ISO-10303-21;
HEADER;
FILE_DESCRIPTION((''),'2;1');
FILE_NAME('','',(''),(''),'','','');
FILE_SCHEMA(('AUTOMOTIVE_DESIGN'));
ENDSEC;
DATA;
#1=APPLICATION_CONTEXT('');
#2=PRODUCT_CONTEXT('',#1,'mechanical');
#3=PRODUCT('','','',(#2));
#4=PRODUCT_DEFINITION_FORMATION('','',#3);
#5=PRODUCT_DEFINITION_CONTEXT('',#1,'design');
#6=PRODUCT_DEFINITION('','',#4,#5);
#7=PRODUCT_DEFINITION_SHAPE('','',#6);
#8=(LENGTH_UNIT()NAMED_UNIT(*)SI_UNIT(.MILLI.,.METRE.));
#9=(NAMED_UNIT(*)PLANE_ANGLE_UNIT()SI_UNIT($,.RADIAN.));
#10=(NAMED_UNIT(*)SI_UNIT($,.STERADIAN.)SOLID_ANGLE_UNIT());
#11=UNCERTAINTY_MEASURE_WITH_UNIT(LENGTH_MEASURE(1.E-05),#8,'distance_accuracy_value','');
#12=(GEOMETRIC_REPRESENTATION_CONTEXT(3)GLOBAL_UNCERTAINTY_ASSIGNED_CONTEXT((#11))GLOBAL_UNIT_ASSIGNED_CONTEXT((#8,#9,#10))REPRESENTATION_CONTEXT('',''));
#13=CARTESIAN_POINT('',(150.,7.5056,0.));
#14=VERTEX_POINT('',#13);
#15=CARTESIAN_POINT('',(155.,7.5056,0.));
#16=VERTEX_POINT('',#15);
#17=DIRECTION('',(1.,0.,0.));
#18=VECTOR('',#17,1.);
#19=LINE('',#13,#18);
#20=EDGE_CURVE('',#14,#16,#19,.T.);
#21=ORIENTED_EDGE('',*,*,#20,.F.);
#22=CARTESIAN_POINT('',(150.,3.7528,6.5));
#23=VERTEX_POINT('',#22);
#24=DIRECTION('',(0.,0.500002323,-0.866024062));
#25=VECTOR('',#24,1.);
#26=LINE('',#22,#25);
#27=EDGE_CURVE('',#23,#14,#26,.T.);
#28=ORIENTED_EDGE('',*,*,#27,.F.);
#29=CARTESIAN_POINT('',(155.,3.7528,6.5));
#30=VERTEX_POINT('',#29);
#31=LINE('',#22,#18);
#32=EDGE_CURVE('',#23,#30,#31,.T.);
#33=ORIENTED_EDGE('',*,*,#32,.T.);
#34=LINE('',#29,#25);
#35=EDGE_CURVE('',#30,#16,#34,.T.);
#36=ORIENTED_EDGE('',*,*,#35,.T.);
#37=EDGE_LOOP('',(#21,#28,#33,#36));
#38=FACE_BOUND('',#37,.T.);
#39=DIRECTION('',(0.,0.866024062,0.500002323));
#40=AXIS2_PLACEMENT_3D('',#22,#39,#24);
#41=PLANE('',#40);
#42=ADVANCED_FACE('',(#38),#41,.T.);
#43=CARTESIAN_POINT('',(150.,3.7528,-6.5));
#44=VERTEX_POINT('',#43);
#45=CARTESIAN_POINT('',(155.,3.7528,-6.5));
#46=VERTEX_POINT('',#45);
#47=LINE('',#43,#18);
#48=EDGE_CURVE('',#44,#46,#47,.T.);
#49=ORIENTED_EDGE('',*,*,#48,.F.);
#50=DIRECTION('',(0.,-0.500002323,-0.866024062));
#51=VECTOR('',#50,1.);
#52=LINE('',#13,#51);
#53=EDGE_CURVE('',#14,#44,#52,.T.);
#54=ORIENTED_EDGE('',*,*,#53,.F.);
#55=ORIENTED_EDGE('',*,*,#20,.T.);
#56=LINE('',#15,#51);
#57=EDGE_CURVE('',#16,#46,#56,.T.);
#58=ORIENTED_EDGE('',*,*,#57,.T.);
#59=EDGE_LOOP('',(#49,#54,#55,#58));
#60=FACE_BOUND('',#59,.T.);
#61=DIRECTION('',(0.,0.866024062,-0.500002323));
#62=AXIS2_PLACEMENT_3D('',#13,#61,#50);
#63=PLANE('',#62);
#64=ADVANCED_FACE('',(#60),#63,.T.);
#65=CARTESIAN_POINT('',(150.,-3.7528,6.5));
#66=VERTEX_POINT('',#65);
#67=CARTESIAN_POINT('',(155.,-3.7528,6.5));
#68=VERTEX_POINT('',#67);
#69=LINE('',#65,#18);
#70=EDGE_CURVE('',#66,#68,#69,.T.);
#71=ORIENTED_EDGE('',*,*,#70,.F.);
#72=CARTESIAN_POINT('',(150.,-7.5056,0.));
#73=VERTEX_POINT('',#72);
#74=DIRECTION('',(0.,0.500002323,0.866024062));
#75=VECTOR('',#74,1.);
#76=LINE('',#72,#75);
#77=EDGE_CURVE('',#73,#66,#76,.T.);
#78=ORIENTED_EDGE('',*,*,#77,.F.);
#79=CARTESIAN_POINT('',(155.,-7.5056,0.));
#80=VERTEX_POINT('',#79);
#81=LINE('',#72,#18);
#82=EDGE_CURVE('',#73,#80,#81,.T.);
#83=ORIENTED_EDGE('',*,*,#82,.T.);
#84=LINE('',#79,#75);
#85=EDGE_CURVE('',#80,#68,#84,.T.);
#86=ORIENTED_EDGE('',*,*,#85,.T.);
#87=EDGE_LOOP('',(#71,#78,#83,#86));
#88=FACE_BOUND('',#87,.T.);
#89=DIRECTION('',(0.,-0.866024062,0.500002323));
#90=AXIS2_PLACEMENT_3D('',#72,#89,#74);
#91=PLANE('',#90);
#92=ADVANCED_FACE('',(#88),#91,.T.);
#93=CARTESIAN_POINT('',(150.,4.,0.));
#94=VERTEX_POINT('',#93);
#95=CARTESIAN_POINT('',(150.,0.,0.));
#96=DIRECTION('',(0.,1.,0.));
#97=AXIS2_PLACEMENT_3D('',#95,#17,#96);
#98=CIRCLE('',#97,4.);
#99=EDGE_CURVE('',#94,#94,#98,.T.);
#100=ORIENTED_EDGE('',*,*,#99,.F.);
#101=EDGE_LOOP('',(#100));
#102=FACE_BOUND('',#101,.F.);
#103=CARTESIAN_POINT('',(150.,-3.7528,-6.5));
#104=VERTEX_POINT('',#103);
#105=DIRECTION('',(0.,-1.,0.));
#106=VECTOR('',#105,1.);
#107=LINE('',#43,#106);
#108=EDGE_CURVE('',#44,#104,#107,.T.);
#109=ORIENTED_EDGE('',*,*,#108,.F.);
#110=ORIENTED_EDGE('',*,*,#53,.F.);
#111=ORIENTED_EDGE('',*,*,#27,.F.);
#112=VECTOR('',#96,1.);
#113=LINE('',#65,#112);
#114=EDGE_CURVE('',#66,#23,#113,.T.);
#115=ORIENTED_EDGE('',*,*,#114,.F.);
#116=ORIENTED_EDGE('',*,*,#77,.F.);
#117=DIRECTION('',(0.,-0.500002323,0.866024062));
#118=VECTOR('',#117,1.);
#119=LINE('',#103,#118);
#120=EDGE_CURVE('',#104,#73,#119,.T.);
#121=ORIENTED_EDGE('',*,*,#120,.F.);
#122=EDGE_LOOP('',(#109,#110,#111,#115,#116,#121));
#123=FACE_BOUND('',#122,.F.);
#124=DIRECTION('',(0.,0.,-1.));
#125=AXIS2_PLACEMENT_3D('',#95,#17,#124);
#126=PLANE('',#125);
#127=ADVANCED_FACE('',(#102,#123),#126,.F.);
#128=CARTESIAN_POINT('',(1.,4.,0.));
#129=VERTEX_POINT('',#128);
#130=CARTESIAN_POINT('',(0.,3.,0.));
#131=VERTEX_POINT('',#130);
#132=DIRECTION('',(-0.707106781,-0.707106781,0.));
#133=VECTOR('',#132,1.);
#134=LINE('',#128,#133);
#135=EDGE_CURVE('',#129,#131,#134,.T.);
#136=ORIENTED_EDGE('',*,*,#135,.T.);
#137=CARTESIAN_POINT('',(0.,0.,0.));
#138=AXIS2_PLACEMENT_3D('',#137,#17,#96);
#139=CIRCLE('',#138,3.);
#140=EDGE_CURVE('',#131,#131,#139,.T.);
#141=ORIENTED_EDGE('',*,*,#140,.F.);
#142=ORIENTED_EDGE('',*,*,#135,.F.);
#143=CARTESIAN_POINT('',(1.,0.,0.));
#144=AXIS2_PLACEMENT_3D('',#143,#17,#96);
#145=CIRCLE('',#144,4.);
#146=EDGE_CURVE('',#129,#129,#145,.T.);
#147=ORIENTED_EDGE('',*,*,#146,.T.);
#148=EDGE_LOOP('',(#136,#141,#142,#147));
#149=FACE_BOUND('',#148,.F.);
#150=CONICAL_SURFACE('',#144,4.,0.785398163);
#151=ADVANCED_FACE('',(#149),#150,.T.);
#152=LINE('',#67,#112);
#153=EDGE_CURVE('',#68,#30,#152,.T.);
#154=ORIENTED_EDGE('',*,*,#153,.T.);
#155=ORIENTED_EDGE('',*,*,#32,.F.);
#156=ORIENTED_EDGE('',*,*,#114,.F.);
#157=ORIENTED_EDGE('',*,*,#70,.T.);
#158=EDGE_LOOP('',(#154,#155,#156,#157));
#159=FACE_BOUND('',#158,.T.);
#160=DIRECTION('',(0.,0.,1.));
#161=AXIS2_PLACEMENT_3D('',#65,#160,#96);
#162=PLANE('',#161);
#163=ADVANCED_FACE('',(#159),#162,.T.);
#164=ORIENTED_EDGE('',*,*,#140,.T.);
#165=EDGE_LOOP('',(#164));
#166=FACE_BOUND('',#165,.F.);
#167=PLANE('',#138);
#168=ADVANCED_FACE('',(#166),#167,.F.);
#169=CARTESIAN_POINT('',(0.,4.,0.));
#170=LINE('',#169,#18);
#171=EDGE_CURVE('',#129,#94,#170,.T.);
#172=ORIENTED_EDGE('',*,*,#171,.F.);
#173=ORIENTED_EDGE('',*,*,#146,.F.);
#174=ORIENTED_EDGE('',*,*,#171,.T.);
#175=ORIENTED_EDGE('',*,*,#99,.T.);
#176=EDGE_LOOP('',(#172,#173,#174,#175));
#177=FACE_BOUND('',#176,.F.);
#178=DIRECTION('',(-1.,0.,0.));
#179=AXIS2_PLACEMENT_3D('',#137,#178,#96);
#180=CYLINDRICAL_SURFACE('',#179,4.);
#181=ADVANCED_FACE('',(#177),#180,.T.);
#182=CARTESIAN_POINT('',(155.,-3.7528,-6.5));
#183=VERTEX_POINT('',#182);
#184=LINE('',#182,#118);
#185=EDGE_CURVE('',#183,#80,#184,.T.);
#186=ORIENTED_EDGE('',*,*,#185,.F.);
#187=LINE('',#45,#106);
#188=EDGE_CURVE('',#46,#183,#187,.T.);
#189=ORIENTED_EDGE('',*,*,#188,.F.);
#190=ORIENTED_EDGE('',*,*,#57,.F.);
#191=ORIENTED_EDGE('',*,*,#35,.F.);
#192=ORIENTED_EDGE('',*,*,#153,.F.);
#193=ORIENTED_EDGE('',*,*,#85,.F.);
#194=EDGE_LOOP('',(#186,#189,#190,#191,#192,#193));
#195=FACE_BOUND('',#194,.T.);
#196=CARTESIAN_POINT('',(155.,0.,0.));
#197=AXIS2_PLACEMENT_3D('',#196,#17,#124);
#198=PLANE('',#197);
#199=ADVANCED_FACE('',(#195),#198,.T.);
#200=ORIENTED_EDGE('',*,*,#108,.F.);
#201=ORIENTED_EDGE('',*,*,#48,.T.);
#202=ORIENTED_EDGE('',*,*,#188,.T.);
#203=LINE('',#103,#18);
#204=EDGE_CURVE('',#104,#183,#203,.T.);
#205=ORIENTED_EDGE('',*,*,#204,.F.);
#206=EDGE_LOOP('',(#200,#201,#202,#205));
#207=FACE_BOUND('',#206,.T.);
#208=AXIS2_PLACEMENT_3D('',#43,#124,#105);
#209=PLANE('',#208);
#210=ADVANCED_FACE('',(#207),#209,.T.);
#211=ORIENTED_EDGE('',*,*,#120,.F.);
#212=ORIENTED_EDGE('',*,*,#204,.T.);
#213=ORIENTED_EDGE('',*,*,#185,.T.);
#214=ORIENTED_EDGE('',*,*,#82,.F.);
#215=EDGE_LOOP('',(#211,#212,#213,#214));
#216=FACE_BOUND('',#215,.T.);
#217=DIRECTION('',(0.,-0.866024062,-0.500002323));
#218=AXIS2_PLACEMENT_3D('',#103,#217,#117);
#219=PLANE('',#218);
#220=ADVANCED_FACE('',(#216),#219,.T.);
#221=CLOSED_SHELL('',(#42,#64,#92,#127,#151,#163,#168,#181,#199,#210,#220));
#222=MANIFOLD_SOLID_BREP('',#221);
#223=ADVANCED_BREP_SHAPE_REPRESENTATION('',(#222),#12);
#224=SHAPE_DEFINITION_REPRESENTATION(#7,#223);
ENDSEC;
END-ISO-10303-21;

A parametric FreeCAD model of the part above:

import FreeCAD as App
import Part
import Sketcher

V = App.Vector
Q = App.Units.Quantity


def edges_at(feature, points):
    """Names of the edges that pass closest to the given points."""
    edges = feature.Shape.Edges
    near = lambda p: min(range(len(edges)), key=lambda i: edges[i].distToShape(Part.Vertex(*p))[0])
    return sorted({f"Edge{near(p) + 1}" for p in points})


def add_polygon(sketch, points):
    """Adds a closed chain of lines whose ends are joined by coincident constraints."""
    first, n = sketch.GeometryCount, len(points)
    for a, b in zip(points, points[1:] + points[:1]):
        sketch.addGeometry(Part.LineSegment(App.Vector(*a, 0), App.Vector(*b, 0)), False)
    for i in range(n):
        sketch.addConstraint(Sketcher.Constraint("Coincident", first + i, 2, first + (i + 1) % n, 1))

doc = App.newDocument("Part")
body = doc.addObject("PartDesign::Body", "Body")

# Sketch on YZ plane
sketch1 = doc.addObject("Sketcher::SketchObject", "Sketch")
body.addObject(sketch1)
sketch1.AttachmentSupport = (doc.YZ_Plane, [""])
sketch1.MapMode = "FlatFace"
sketch1.addGeometry(Part.Circle(V(0, 0, 0), V(0, 0, 1), 4), False)
sketch1.addConstraint([
    Sketcher.Constraint("Coincident", 0, 3, -1, 1),
    Sketcher.Constraint("Diameter", 0, Q("8 mm")),
])
pad1 = doc.addObject("PartDesign::Pad", "Pad")
body.addObject(pad1)
pad1.Profile = sketch1
pad1.Length = 150

# Sketch on YZ plane
sketch2 = doc.addObject("Sketcher::SketchObject", "Sketch001")
body.addObject(sketch2)
sketch2.AttachmentSupport = (doc.YZ_Plane, [""])
sketch2.MapMode = "FlatFace"
sketch2.AttachmentOffset = App.Placement(V(0, 0, 150), App.Rotation())
add_polygon(sketch2, [(4, -6), (8, 0), (4, 6), (-4, 6), (-8, 0), (-4, -6)])  # lines 0-5
sketch2.addConstraint([
    Sketcher.Constraint("Horizontal", 2),
    Sketcher.Constraint("Horizontal", 5),
    Sketcher.Constraint("Symmetric", 0, 2, 3, 2, -1, 1),
    Sketcher.Constraint("Symmetric", 1, 2, 4, 2, -1, 1),
    Sketcher.Constraint("PointOnObject", 0, 2, -1),
    Sketcher.Constraint("Parallel", 0, 3),
    Sketcher.Constraint("Vertical", 2, 2, 4, 2),
    Sketcher.Constraint("DistanceY", 4, 2, 2, 2, Q("13 mm")),
    Sketcher.Constraint("Angle", 0, Q("59.9998 deg")),
    Sketcher.Constraint("DistanceX", 2, 2, 2, 1, Q("7.5056 mm")),
])
pad2 = doc.addObject("PartDesign::Pad", "Pad001")
body.addObject(pad2)
pad2.Profile = sketch2
pad2.Length = 5
doc.recompute()

chamfer = doc.addObject("PartDesign::Chamfer", "Chamfer")
body.addObject(chamfer)
chamfer.Base = (pad2, edges_at(pad2, [(0, -4, 0)]))
chamfer.Size = 1

doc.recompute()
